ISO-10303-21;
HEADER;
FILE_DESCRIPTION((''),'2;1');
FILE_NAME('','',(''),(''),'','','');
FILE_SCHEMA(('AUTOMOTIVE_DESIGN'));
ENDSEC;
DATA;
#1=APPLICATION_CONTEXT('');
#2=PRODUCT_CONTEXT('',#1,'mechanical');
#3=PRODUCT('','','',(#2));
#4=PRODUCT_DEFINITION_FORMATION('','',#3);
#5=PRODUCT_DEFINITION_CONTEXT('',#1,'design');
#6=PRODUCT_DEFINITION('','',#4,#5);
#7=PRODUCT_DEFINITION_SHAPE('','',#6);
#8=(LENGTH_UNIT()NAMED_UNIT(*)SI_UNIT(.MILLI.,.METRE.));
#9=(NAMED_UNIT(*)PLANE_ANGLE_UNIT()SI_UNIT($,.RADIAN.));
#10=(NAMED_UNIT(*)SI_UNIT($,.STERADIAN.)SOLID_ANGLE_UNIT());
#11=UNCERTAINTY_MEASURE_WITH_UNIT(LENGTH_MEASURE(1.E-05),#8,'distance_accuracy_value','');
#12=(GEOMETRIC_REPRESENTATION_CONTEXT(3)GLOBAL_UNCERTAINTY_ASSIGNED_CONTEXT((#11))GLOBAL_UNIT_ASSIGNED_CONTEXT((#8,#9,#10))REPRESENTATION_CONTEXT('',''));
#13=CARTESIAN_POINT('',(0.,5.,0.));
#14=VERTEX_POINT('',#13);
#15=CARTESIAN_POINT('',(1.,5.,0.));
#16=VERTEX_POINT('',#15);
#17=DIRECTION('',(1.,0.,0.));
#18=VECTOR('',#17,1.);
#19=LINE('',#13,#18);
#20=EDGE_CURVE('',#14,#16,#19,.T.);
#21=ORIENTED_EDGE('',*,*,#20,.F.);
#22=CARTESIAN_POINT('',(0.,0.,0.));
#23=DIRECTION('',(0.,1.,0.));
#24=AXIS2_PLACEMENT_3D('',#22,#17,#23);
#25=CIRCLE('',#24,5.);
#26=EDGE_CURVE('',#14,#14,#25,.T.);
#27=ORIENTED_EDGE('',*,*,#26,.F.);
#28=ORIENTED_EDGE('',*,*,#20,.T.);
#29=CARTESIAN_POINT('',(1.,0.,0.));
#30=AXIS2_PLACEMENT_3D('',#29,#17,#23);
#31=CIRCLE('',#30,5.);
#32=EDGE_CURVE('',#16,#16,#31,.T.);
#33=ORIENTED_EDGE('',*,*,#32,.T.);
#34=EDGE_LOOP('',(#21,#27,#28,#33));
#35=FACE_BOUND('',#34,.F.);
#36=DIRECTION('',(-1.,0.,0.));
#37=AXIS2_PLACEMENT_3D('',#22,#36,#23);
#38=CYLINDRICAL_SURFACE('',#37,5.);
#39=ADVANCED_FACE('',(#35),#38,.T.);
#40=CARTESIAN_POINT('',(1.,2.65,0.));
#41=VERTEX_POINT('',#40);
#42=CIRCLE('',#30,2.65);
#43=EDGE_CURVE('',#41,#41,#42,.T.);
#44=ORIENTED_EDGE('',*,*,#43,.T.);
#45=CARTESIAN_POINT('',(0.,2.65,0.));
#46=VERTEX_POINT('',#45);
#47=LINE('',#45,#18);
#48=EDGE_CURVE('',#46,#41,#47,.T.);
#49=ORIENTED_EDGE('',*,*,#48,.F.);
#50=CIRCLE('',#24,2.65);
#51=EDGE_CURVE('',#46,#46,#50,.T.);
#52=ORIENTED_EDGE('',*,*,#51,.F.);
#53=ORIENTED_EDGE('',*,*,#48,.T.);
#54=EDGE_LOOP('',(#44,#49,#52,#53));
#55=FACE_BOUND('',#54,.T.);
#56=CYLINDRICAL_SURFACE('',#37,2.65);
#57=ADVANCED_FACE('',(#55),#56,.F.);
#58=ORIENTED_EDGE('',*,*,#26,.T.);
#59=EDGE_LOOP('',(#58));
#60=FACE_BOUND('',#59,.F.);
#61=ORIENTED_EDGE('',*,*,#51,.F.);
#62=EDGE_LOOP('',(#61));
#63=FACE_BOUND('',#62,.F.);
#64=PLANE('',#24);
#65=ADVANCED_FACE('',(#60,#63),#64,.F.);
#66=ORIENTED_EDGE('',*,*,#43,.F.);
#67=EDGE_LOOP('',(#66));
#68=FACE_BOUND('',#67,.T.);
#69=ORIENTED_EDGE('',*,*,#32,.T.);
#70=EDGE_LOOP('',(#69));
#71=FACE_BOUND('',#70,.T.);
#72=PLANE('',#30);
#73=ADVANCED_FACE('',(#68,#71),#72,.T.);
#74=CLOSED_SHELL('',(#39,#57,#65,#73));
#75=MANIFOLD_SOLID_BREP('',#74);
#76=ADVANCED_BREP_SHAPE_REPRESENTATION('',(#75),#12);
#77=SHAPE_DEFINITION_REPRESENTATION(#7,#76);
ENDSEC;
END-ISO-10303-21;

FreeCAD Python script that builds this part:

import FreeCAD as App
import Part
import Sketcher

V = App.Vector

doc = App.newDocument("Part")
params = doc.addObject("Spreadsheet::Sheet", "Params")
for row, (alias, value) in enumerate([
    ("sketch1_diameter", "10 mm"),
    ("sketch1_diameter2", "5.3 mm"),
    ("pad1_length", "1 mm"),
], start=1):
    params.set(f"A{row}", alias)
    params.set(f"B{row}", "=" + value)
    params.setAlias(f"B{row}", alias)

body = doc.addObject("PartDesign::Body", "Body")

# Sketch on YZ plane
sketch1 = doc.addObject("Sketcher::SketchObject", "Sketch")
body.addObject(sketch1)
sketch1.AttachmentSupport = (doc.YZ_Plane, [""])
sketch1.MapMode = "FlatFace"
sketch1.addGeometry([
    Part.Circle(V(0, 0, 0), V(0, 0, 1), 5),
    Part.Circle(V(0, 0, 0), V(0, 0, 1), 2.65),
], False)
sketch1.addConstraint([
    Sketcher.Constraint("Coincident", 0, 3, -1, 1),
    Sketcher.Constraint("Coincident", 1, 3, -1, 1),
    Sketcher.Constraint("Diameter", 0, 10.0),
    Sketcher.Constraint("Diameter", 1, 5.3),
])
sketch1.setExpression("Constraints[2]", "Params.sketch1_diameter")
sketch1.setExpression("Constraints[3]", "Params.sketch1_diameter2")
pad1 = doc.addObject("PartDesign::Pad", "Pad")
body.addObject(pad1)
pad1.Profile = sketch1
pad1.setExpression("Length", "Params.pad1_length")

doc.recompute()
